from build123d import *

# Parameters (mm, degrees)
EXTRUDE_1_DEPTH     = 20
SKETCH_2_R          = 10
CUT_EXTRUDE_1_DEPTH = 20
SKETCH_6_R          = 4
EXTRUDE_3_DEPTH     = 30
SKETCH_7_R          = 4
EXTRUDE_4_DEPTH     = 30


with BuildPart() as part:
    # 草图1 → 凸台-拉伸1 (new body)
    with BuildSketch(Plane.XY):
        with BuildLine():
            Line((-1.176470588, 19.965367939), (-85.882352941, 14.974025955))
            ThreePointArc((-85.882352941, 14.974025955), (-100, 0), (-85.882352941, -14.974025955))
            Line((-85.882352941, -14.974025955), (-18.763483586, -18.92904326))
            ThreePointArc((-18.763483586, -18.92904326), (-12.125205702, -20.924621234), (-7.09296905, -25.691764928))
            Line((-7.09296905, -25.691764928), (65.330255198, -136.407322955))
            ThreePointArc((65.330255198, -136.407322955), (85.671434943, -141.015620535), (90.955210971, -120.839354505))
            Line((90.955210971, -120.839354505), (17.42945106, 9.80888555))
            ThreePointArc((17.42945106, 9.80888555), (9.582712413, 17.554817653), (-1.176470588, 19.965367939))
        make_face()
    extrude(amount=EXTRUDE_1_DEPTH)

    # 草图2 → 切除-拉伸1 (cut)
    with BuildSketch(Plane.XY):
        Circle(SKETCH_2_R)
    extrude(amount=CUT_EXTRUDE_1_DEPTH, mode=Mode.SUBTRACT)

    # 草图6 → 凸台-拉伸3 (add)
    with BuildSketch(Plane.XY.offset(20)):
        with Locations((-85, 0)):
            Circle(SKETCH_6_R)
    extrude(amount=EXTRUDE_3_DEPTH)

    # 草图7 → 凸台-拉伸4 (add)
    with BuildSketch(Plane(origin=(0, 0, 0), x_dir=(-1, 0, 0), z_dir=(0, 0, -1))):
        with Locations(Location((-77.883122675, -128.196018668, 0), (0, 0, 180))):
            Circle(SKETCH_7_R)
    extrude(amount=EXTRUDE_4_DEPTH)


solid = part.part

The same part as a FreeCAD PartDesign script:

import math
import FreeCAD as App
import Part
import Sketcher

doc = App.newDocument("Part")
params = doc.addObject("Spreadsheet::Sheet", "Params")
for row, (alias, value) in enumerate([
    ("sketch1_radius", "15 mm"),
    ("sketch1_radius2", "20 mm"),
    ("pad1_length", "20 mm"),
    ("sketch2_diameter", "20 mm"),
    ("pocket1_length", "20 mm"),
    ("sketch3_diameter", "8 mm"),
    ("pad2_length", "30 mm"),
    ("sketch4_diameter", "8 mm"),
    ("pad3_length", "30 mm"),
], start=1):
    params.set(f"A{row}", alias)
    params.set(f"B{row}", "=" + value)
    params.setAlias(f"B{row}", alias)

body = doc.addObject("PartDesign::Body", "Body")

sketch1 = doc.addObject("Sketcher::SketchObject", "Sketch")
body.addObject(sketch1)
sketch1.AttachmentSupport = (doc.XY_Plane, [""])
sketch1.MapMode = "FlatFace"
sketch1.addGeometry(Part.LineSegment(App.Vector(-1, 20, 0), App.Vector(-86, 15, 0)), False)
sketch1.addGeometry(Part.ArcOfCircle(Part.Circle(App.Vector(-85, 0, 0), App.Vector(0, 0, 1), 15), math.radians(93), math.radians(267)), False)
sketch1.addGeometry(Part.LineSegment(App.Vector(-86, -15, 0), App.Vector(-19, -19, 0)), False)
sketch1.addGeometry(Part.ArcOfCircle(Part.Circle(App.Vector(-20, -34, 0), App.Vector(0, 0, 1), 15), math.radians(33), math.radians(87)), False)
sketch1.addGeometry(Part.LineSegment(App.Vector(-7, -26, 0), App.Vector(65, -136, 0)), False)
sketch1.addGeometry(Part.ArcOfCircle(Part.Circle(App.Vector(78, -128, 0), App.Vector(0, 0, 1), 15), math.radians(-147), math.radians(29)), False)
sketch1.addGeometry(Part.LineSegment(App.Vector(91, -121, 0), App.Vector(17, 10, 0)), False)
sketch1.addGeometry(Part.ArcOfCircle(Part.Circle(App.Vector(0, 0, 0), App.Vector(0, 0, 1), 20), math.radians(29), math.radians(93)), False)
sketch1.addConstraint(Sketcher.Constraint("Tangent", 0, 2, 1, 1))
sketch1.addConstraint(Sketcher.Constraint("Tangent", 1, 2, 2, 1))
sketch1.addConstraint(Sketcher.Constraint("Tangent", 2, 2, 3, 2))
sketch1.addConstraint(Sketcher.Constraint("Tangent", 3, 1, 4, 1))
sketch1.addConstraint(Sketcher.Constraint("Tangent", 4, 2, 5, 1))
sketch1.addConstraint(Sketcher.Constraint("Tangent", 5, 2, 6, 1))
sketch1.addConstraint(Sketcher.Constraint("Tangent", 6, 2, 7, 1))
sketch1.addConstraint(Sketcher.Constraint("Tangent", 7, 2, 0, 1))
sketch1.addConstraint(Sketcher.Constraint("Coincident", 7, 3, -1, 1))
sketch1.addConstraint(Sketcher.Constraint("Equal", 1, 3))
sketch1.addConstraint(Sketcher.Constraint("Equal", 3, 5))
sketch1.addConstraint(Sketcher.Constraint("Symmetric", 0, 2, 1, 2, -1))
sketch1.addConstraint(Sketcher.Constraint("Radius", 1, 15.0))
sketch1.addConstraint(Sketcher.Constraint("Radius", 7, 20.0))
sketch1.addConstraint(Sketcher.Constraint("DistanceX", 1, 3, -1, 1, 85.0))
sketch1.addConstraint(Sketcher.Constraint("DistanceX", 3, 1, 7, 2, 5.916498))
sketch1.addConstraint(Sketcher.Constraint("DistanceY", 5, 3, -1, 1, 128.196019))
sketch1.addConstraint(Sketcher.Constraint("DistanceX", -1, 1, 5, 2, 90.955211))
sketch1.setExpression("Constraints[12]", "Params.sketch1_radius")
sketch1.setExpression("Constraints[13]", "Params.sketch1_radius2")
pad1 = doc.addObject("PartDesign::Pad", "Pad")
body.addObject(pad1)
pad1.Profile = sketch1
pad1.setExpression("Length", "Params.pad1_length")

sketch2 = doc.addObject("Sketcher::SketchObject", "Sketch001")
body.addObject(sketch2)
sketch2.AttachmentSupport = (doc.XY_Plane, [""])
sketch2.MapMode = "FlatFace"
sketch2.addGeometry(Part.Circle(App.Vector(0, 0, 0), App.Vector(0, 0, 1), 10), False)
sketch2.addConstraint(Sketcher.Constraint("Coincident", 0, 3, -1, 1))
sketch2.addConstraint(Sketcher.Constraint("Diameter", 0, 20.0))
sketch2.setExpression("Constraints[1]", "Params.sketch2_diameter")
pocket1 = doc.addObject("PartDesign::Pocket", "Pocket")
body.addObject(pocket1)
pocket1.Profile = sketch2
pocket1.setExpression("Length", "Params.pocket1_length")
pocket1.Reversed = True

sketch3 = doc.addObject("Sketcher::SketchObject", "Sketch002")
body.addObject(sketch3)
sketch3.AttachmentSupport = (doc.XY_Plane, [""])
sketch3.MapMode = "FlatFace"
sketch3.AttachmentOffset = App.Placement(App.Vector(0, 0, 20), App.Rotation())
sketch3.addGeometry(Part.Circle(App.Vector(-85, 0, 0), App.Vector(0, 0, 1), 4), False)
sketch3.addConstraint(Sketcher.Constraint("PointOnObject", 0, 3, -1))
sketch3.addConstraint(Sketcher.Constraint("Diameter", 0, 8.0))
sketch3.addConstraint(Sketcher.Constraint("DistanceX", 0, 3, -1, 1, 85.0))
sketch3.setExpression("Constraints[1]", "Params.sketch3_diameter")
pad2 = doc.addObject("PartDesign::Pad", "Pad001")
body.addObject(pad2)
pad2.Profile = sketch3
pad2.setExpression("Length", "Params.pad2_length")

sketch4 = doc.addObject("Sketcher::SketchObject", "Sketch003")
body.addObject(sketch4)
sketch4.AttachmentSupport = (doc.XY_Plane, [""])
sketch4.MapMode = "FlatFace"
sketch4.addGeometry(Part.Circle(App.Vector(77.9, -128.2, 0), App.Vector(0, 0, 1), 4), False)
sketch4.addConstraint(Sketcher.Constraint("Diameter", 0, 8.0))
sketch4.addConstraint(Sketcher.Constraint("DistanceY", 0, 3, -1, 1, 128.196019))
sketch4.addConstraint(Sketcher.Constraint("DistanceX", -1, 1, 0, 3, 77.883123))
sketch4.setExpression("Constraints[0]", "Params.sketch4_diameter")
pad3 = doc.addObject("PartDesign::Pad", "Pad002")
body.addObject(pad3)
pad3.Profile = sketch4
pad3.setExpression("Length", "Params.pad3_length")
pad3.Reversed = True

doc.recompute()
